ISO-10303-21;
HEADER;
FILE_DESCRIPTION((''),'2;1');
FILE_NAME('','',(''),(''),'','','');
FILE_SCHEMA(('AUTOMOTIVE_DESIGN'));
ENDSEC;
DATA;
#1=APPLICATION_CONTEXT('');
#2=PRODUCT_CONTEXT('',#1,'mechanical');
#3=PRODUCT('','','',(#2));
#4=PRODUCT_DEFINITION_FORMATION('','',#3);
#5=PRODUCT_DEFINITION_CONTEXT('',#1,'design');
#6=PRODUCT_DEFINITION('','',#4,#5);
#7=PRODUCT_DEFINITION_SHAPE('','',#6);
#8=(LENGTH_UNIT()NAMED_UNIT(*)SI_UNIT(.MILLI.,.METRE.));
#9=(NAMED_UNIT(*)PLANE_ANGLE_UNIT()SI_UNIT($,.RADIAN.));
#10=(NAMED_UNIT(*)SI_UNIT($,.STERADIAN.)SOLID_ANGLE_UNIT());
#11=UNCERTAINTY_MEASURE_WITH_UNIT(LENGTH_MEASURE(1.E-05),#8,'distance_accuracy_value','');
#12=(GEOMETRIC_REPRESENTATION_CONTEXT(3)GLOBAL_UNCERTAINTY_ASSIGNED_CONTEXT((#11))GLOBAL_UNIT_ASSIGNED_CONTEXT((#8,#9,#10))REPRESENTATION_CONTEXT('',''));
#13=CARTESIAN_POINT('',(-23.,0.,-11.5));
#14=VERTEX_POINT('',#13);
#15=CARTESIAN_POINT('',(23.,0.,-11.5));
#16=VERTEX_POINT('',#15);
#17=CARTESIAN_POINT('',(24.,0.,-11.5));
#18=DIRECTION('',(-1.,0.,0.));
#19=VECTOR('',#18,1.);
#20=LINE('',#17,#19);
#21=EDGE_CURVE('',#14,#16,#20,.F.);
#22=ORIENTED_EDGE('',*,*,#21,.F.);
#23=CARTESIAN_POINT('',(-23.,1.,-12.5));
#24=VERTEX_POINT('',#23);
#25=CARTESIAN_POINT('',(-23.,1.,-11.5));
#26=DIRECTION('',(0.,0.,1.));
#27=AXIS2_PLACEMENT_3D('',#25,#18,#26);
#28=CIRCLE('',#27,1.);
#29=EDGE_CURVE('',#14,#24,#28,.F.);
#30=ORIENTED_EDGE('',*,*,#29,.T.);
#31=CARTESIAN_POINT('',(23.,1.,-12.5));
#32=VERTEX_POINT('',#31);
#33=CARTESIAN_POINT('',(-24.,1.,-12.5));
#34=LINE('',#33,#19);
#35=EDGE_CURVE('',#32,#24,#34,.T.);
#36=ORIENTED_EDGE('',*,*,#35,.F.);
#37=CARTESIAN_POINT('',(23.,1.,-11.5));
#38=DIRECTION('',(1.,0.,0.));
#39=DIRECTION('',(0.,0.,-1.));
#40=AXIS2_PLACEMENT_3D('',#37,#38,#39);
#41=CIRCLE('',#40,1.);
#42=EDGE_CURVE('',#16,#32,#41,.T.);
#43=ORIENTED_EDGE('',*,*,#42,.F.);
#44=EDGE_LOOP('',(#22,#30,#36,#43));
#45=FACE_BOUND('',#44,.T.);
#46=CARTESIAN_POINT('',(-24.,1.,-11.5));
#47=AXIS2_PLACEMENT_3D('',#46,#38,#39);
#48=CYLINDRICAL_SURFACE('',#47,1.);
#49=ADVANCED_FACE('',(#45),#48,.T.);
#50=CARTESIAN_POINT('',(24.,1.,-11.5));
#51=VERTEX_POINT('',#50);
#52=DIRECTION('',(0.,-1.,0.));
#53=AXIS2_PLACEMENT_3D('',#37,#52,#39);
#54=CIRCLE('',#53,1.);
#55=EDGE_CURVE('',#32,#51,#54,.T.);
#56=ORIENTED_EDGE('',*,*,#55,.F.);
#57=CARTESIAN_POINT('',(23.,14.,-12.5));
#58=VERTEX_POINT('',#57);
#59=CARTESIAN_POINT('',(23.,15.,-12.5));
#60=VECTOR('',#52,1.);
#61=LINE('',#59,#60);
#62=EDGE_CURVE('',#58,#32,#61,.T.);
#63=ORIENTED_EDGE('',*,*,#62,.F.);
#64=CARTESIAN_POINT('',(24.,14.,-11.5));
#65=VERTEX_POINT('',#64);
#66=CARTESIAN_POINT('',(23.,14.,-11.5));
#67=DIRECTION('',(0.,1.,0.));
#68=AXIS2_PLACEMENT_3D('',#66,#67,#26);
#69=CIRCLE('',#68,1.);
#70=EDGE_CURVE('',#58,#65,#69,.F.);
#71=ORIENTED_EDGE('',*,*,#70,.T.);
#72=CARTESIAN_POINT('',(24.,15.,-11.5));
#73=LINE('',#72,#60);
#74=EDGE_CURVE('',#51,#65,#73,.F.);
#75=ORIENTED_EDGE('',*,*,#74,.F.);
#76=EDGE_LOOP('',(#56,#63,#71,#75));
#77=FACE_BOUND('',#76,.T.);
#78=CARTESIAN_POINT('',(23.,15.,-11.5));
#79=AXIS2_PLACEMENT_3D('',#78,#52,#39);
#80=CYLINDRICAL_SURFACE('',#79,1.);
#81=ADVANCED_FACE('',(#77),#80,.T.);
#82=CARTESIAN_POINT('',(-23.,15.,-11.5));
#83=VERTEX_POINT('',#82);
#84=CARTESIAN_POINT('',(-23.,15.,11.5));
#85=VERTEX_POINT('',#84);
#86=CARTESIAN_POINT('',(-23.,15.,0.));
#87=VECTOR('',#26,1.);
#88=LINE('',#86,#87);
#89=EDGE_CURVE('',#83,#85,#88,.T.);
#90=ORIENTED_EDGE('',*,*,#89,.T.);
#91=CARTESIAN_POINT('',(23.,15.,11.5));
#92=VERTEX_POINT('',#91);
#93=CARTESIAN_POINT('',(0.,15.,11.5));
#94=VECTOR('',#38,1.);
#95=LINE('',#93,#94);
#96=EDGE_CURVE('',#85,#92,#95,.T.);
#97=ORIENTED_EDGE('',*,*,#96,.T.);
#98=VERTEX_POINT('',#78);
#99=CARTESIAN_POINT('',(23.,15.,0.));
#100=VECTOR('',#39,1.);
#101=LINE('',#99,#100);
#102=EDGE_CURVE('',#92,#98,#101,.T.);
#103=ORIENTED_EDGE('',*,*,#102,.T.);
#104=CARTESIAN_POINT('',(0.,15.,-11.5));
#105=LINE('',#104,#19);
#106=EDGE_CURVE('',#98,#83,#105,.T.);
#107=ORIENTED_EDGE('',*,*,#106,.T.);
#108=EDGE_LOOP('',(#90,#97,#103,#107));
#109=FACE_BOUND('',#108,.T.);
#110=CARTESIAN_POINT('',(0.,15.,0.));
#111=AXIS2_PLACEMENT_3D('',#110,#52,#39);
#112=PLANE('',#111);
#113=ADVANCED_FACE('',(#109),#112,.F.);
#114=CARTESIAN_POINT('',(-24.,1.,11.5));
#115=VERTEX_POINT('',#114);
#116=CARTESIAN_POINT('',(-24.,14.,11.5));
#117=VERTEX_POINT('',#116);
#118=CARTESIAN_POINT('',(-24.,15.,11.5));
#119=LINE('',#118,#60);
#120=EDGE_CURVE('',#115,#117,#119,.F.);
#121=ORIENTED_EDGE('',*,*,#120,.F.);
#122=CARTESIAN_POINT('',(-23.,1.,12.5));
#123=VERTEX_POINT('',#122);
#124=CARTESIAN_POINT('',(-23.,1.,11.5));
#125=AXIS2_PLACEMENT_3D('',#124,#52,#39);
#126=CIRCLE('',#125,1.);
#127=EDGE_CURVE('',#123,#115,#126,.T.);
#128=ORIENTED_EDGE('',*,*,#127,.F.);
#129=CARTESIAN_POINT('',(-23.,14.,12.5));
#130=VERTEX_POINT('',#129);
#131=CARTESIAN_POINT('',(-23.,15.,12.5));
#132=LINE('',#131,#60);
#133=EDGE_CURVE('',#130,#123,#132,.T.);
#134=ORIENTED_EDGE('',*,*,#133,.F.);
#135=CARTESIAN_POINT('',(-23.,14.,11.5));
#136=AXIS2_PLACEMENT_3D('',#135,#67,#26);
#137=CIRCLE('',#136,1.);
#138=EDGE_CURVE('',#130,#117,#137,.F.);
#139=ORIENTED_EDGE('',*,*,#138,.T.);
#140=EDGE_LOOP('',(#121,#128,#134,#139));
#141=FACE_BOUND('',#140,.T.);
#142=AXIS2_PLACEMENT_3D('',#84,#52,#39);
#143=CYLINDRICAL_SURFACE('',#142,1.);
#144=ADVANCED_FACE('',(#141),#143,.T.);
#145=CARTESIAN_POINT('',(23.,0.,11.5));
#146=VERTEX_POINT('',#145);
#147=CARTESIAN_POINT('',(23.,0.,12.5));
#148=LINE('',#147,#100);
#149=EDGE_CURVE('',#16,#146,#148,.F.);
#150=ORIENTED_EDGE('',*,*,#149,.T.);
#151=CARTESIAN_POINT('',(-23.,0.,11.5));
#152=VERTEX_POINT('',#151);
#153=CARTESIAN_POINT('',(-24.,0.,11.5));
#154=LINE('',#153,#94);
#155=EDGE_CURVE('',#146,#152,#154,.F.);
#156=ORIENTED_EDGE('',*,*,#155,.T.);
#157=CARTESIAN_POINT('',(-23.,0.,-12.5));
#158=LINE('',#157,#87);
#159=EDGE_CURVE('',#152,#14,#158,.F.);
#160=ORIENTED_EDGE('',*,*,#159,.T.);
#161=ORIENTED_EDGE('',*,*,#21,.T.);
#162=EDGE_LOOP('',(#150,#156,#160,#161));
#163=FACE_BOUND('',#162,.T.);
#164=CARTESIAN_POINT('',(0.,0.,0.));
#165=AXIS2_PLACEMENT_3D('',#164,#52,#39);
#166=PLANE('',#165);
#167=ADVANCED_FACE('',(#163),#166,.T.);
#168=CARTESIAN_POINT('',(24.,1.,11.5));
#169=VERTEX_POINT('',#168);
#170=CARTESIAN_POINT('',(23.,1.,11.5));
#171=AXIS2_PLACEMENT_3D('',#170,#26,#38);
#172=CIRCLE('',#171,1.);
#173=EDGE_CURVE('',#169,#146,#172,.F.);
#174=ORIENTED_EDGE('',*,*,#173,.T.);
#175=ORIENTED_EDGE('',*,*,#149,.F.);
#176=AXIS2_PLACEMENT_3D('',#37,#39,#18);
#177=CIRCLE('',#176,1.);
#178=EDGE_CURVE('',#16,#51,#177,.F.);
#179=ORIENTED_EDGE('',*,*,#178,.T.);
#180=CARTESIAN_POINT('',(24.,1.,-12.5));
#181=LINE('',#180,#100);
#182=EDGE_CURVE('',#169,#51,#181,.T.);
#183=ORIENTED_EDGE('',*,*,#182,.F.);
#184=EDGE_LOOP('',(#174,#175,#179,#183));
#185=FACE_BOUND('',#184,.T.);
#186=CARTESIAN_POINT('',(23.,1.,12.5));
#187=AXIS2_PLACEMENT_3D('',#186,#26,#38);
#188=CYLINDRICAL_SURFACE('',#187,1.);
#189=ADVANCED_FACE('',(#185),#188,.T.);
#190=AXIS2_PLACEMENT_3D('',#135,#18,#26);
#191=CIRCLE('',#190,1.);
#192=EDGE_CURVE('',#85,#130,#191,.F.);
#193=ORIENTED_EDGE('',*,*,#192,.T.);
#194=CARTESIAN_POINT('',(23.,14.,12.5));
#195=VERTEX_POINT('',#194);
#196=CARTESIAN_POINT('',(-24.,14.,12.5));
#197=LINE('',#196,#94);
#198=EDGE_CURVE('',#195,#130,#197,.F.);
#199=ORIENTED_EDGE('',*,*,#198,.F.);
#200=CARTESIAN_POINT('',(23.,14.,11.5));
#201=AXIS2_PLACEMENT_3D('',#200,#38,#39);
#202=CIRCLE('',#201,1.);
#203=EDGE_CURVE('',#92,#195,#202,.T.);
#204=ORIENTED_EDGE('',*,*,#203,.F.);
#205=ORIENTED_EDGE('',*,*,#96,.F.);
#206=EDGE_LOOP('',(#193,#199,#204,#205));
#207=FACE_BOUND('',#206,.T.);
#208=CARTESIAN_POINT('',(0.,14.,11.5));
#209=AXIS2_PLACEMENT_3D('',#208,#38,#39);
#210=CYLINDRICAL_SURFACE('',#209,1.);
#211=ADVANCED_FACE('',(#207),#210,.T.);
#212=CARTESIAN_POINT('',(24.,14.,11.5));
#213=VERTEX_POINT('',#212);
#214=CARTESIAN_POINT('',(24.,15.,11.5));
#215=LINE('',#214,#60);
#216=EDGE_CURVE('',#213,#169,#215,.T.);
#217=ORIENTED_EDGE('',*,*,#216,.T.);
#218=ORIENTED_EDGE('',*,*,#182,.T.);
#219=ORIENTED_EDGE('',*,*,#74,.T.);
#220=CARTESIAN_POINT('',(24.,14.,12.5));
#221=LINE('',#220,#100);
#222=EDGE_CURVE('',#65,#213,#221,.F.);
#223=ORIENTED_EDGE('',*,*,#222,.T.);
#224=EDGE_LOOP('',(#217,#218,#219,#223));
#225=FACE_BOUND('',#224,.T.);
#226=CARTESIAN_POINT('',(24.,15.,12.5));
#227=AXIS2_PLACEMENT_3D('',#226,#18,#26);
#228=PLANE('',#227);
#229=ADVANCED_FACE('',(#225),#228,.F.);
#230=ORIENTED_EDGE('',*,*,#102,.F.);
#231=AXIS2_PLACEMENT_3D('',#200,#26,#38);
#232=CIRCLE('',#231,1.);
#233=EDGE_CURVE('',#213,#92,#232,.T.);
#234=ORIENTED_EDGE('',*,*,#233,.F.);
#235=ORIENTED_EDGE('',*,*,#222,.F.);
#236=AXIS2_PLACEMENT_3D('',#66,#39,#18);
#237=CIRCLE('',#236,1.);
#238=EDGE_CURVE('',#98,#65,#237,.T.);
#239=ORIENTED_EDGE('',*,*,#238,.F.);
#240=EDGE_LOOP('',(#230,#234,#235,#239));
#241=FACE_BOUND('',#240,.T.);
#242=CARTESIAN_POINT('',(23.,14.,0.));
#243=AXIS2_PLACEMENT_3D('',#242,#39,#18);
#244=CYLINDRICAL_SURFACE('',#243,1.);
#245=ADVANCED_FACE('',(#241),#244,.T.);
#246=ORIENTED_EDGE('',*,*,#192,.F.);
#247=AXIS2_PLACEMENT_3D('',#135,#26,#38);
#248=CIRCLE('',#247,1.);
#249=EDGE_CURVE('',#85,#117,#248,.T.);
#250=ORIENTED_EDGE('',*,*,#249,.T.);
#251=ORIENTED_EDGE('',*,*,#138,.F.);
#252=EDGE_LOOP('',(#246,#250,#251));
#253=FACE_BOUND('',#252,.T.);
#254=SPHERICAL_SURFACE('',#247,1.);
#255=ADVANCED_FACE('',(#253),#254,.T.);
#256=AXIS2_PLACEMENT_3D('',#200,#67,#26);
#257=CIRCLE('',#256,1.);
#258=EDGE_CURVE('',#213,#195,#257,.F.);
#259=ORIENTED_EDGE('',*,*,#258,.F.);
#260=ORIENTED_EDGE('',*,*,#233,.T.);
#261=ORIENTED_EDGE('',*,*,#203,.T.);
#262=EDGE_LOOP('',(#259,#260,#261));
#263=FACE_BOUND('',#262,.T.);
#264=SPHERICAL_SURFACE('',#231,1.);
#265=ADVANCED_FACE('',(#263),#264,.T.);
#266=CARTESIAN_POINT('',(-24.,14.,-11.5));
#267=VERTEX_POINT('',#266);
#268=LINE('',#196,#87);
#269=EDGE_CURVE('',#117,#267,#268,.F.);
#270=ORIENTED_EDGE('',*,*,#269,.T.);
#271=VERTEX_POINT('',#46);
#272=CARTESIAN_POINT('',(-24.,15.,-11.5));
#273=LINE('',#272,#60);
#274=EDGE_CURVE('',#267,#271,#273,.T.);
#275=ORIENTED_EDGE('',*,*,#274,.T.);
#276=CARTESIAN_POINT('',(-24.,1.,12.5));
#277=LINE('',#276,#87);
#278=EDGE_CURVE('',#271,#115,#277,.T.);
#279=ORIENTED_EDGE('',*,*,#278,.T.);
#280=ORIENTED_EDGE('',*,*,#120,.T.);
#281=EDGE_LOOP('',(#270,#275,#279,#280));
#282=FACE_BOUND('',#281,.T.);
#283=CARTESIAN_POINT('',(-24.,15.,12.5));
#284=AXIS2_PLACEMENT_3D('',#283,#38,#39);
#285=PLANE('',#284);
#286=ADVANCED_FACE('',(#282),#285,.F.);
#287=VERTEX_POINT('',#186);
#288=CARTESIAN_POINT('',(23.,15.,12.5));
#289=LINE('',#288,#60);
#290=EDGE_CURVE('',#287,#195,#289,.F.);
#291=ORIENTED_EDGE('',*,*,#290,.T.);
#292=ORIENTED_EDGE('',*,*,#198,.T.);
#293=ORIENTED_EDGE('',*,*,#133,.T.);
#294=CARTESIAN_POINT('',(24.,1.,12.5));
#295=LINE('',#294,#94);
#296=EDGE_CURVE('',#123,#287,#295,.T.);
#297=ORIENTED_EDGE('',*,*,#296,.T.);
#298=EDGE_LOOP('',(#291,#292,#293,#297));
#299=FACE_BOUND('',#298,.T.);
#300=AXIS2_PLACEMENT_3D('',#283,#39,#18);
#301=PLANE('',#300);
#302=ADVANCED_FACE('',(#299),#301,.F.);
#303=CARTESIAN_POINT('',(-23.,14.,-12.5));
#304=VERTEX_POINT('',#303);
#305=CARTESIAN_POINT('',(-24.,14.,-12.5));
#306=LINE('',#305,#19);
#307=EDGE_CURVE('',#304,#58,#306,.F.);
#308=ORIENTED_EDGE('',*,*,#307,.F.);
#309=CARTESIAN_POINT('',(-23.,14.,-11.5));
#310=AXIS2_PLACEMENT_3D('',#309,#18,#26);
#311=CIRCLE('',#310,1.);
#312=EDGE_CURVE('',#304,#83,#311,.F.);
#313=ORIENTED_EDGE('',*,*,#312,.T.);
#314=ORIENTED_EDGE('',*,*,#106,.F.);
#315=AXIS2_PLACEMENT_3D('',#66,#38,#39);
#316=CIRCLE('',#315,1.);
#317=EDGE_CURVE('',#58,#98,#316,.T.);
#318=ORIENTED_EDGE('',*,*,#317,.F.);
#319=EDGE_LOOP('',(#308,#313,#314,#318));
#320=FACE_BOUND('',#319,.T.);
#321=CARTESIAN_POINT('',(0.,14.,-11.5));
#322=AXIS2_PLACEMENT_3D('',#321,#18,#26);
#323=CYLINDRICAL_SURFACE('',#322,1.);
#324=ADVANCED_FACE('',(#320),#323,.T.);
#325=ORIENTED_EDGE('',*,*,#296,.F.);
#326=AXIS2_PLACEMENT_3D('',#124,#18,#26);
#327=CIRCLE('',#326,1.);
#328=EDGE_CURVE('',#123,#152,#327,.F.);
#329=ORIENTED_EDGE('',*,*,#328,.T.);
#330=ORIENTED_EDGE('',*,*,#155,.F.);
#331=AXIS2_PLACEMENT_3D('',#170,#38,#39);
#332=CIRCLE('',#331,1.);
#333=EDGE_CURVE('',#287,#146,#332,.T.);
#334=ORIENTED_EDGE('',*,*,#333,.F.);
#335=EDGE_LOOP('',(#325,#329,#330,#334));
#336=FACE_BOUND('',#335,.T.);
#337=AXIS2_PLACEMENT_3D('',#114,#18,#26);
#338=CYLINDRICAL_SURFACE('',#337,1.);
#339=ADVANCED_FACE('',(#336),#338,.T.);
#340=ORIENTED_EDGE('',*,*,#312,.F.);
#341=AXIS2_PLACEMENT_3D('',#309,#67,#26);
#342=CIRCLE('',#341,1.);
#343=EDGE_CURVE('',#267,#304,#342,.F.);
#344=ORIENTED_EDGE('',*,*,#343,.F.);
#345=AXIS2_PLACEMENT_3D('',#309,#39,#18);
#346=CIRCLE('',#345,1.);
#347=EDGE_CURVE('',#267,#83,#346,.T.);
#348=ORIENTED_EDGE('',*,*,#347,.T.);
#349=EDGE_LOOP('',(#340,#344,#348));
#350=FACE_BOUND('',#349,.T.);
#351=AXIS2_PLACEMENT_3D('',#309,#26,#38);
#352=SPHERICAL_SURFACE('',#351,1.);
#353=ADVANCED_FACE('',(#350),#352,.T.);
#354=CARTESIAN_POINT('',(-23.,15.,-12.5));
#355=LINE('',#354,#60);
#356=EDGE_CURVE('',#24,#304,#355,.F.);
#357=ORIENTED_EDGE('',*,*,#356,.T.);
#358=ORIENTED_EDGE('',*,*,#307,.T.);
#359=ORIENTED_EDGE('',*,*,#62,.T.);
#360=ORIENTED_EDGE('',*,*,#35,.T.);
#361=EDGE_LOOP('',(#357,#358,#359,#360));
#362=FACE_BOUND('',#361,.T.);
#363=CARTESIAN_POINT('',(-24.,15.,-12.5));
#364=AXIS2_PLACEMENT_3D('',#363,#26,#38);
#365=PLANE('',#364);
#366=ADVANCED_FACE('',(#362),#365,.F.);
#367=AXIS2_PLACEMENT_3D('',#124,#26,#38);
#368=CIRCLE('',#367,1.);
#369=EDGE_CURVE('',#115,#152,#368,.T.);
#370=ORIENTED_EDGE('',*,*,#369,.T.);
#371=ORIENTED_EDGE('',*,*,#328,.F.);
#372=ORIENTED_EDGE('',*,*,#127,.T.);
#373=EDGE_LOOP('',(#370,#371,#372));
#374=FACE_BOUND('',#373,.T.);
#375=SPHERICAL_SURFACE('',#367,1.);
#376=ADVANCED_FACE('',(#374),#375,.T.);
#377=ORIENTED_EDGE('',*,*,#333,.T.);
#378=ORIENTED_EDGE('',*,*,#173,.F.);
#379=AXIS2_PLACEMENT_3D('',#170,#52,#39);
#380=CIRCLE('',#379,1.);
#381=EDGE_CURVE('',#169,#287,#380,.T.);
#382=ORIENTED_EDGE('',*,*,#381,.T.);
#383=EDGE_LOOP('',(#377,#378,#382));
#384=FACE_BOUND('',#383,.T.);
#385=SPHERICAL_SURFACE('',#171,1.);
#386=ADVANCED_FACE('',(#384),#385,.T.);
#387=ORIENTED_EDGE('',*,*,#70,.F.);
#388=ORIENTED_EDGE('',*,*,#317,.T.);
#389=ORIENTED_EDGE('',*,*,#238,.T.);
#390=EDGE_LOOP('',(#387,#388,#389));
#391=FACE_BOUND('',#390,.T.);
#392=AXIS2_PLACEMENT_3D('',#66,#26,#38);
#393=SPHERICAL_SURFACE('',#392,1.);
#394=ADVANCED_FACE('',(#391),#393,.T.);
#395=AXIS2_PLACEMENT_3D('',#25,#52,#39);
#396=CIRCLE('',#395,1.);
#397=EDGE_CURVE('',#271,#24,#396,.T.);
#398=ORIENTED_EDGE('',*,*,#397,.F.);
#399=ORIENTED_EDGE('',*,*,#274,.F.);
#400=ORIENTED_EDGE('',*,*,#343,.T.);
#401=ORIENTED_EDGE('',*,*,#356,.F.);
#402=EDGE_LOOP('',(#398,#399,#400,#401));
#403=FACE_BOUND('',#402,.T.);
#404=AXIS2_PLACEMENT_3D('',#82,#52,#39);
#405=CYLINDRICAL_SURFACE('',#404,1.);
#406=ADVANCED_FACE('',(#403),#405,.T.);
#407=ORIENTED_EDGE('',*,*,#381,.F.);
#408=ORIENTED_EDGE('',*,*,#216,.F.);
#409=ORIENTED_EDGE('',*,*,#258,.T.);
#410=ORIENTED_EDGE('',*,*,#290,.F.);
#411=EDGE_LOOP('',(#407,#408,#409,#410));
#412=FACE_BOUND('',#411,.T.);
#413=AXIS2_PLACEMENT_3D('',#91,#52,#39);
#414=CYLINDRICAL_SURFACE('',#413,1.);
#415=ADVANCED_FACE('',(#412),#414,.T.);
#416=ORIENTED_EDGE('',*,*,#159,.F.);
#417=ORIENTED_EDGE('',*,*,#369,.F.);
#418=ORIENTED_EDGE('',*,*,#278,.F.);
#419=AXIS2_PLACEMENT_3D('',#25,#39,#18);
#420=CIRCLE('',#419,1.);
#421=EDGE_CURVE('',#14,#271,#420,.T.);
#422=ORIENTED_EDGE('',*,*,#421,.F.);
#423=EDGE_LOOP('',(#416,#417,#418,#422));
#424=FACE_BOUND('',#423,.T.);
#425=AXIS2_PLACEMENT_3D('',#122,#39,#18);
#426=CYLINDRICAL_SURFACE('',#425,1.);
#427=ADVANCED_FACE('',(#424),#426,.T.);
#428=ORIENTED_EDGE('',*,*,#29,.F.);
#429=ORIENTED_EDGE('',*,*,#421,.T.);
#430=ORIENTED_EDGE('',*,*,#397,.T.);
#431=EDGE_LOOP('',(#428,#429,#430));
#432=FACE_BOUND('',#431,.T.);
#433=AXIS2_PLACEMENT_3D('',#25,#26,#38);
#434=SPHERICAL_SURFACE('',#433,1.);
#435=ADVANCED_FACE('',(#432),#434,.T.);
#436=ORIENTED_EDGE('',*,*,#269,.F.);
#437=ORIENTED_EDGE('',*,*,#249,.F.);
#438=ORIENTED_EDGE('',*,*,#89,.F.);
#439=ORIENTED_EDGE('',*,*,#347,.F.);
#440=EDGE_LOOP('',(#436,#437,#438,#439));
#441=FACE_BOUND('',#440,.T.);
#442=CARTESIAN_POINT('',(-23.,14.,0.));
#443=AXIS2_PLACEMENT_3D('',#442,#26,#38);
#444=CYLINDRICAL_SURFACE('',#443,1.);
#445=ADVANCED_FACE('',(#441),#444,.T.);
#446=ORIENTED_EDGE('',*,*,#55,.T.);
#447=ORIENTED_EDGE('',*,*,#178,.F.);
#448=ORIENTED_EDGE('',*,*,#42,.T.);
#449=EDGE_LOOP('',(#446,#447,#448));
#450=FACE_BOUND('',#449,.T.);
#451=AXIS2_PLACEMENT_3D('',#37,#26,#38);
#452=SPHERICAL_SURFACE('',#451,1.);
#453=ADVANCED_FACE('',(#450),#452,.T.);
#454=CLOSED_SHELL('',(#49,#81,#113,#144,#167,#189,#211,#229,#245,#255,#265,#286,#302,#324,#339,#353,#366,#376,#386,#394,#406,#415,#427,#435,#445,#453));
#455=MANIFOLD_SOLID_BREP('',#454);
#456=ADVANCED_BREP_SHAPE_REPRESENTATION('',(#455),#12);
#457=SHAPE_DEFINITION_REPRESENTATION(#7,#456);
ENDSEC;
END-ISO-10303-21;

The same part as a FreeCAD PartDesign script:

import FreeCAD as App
import Part
import Sketcher
Q = App.Units.Quantity

doc = App.newDocument("Part")
params = doc.addObject("Spreadsheet::Sheet", "Params")
for row, (alias, value) in enumerate([
    ("sketch1_width", "48 mm"),
    ("sketch1_height", "25 mm"),
    ("pad1_length", "15 mm"),
    ("fillet_radius", "1 mm"),
], start=1):
    params.set(f"A{row}", alias)
    params.set(f"B{row}", "=" + value)
    params.setAlias(f"B{row}", alias)

body = doc.addObject("PartDesign::Body", "Body")

sketch1 = body.newObject("Sketcher::SketchObject", "Sketch")
sketch1.AttachmentSupport = (doc.getObject("XZ_Plane"), [""])
sketch1.MapMode = "FlatFace"
sketch1.addGeometry([
    Part.LineSegment(App.Vector(-24, -12.5, 0), App.Vector(-24, 12.5, 0)),
    Part.LineSegment(App.Vector(-24, 12.5, 0), App.Vector(24, 12.5, 0)),
    Part.LineSegment(App.Vector(24, 12.5, 0), App.Vector(24, -12.5, 0)),
    Part.LineSegment(App.Vector(24, -12.5, 0), App.Vector(-24, -12.5, 0)),
], False)
sketch1.addConstraint([
    Sketcher.Constraint("Coincident", 0, 2, 1, 1),
    Sketcher.Constraint("Coincident", 1, 2, 2, 1),
    Sketcher.Constraint("Coincident", 2, 2, 3, 1),
    Sketcher.Constraint("Coincident", 3, 2, 0, 1),
    Sketcher.Constraint("Vertical", 0),
    Sketcher.Constraint("Horizontal", 1),
    Sketcher.Constraint("Vertical", 2),
    Sketcher.Constraint("Horizontal", 3),
    Sketcher.Constraint("Symmetric", 0, 2, 2, 2, -1, 1),
    Sketcher.Constraint("DistanceX", 1, 1, 1, 2, Q("48 mm")),
    Sketcher.Constraint("DistanceY", 0, 1, 0, 2, Q("25 mm")),
])
sketch1.setExpression("Constraints[9]", "Params.sketch1_width")
sketch1.setExpression("Constraints[10]", "Params.sketch1_height")
pad1 = body.newObject("PartDesign::Pad", "Pad")
pad1.Profile = sketch1
pad1.setExpression("Length", "Params.pad1_length")
pad1.Reversed = True
doc.recompute()

fillet = body.newObject("PartDesign::Fillet", "Fillet")
fillet.Base = (pad1, ["Edge1"])
fillet.UseAllEdges = True
fillet.setExpression("Radius", "Params.fillet_radius")

doc.recompute()
